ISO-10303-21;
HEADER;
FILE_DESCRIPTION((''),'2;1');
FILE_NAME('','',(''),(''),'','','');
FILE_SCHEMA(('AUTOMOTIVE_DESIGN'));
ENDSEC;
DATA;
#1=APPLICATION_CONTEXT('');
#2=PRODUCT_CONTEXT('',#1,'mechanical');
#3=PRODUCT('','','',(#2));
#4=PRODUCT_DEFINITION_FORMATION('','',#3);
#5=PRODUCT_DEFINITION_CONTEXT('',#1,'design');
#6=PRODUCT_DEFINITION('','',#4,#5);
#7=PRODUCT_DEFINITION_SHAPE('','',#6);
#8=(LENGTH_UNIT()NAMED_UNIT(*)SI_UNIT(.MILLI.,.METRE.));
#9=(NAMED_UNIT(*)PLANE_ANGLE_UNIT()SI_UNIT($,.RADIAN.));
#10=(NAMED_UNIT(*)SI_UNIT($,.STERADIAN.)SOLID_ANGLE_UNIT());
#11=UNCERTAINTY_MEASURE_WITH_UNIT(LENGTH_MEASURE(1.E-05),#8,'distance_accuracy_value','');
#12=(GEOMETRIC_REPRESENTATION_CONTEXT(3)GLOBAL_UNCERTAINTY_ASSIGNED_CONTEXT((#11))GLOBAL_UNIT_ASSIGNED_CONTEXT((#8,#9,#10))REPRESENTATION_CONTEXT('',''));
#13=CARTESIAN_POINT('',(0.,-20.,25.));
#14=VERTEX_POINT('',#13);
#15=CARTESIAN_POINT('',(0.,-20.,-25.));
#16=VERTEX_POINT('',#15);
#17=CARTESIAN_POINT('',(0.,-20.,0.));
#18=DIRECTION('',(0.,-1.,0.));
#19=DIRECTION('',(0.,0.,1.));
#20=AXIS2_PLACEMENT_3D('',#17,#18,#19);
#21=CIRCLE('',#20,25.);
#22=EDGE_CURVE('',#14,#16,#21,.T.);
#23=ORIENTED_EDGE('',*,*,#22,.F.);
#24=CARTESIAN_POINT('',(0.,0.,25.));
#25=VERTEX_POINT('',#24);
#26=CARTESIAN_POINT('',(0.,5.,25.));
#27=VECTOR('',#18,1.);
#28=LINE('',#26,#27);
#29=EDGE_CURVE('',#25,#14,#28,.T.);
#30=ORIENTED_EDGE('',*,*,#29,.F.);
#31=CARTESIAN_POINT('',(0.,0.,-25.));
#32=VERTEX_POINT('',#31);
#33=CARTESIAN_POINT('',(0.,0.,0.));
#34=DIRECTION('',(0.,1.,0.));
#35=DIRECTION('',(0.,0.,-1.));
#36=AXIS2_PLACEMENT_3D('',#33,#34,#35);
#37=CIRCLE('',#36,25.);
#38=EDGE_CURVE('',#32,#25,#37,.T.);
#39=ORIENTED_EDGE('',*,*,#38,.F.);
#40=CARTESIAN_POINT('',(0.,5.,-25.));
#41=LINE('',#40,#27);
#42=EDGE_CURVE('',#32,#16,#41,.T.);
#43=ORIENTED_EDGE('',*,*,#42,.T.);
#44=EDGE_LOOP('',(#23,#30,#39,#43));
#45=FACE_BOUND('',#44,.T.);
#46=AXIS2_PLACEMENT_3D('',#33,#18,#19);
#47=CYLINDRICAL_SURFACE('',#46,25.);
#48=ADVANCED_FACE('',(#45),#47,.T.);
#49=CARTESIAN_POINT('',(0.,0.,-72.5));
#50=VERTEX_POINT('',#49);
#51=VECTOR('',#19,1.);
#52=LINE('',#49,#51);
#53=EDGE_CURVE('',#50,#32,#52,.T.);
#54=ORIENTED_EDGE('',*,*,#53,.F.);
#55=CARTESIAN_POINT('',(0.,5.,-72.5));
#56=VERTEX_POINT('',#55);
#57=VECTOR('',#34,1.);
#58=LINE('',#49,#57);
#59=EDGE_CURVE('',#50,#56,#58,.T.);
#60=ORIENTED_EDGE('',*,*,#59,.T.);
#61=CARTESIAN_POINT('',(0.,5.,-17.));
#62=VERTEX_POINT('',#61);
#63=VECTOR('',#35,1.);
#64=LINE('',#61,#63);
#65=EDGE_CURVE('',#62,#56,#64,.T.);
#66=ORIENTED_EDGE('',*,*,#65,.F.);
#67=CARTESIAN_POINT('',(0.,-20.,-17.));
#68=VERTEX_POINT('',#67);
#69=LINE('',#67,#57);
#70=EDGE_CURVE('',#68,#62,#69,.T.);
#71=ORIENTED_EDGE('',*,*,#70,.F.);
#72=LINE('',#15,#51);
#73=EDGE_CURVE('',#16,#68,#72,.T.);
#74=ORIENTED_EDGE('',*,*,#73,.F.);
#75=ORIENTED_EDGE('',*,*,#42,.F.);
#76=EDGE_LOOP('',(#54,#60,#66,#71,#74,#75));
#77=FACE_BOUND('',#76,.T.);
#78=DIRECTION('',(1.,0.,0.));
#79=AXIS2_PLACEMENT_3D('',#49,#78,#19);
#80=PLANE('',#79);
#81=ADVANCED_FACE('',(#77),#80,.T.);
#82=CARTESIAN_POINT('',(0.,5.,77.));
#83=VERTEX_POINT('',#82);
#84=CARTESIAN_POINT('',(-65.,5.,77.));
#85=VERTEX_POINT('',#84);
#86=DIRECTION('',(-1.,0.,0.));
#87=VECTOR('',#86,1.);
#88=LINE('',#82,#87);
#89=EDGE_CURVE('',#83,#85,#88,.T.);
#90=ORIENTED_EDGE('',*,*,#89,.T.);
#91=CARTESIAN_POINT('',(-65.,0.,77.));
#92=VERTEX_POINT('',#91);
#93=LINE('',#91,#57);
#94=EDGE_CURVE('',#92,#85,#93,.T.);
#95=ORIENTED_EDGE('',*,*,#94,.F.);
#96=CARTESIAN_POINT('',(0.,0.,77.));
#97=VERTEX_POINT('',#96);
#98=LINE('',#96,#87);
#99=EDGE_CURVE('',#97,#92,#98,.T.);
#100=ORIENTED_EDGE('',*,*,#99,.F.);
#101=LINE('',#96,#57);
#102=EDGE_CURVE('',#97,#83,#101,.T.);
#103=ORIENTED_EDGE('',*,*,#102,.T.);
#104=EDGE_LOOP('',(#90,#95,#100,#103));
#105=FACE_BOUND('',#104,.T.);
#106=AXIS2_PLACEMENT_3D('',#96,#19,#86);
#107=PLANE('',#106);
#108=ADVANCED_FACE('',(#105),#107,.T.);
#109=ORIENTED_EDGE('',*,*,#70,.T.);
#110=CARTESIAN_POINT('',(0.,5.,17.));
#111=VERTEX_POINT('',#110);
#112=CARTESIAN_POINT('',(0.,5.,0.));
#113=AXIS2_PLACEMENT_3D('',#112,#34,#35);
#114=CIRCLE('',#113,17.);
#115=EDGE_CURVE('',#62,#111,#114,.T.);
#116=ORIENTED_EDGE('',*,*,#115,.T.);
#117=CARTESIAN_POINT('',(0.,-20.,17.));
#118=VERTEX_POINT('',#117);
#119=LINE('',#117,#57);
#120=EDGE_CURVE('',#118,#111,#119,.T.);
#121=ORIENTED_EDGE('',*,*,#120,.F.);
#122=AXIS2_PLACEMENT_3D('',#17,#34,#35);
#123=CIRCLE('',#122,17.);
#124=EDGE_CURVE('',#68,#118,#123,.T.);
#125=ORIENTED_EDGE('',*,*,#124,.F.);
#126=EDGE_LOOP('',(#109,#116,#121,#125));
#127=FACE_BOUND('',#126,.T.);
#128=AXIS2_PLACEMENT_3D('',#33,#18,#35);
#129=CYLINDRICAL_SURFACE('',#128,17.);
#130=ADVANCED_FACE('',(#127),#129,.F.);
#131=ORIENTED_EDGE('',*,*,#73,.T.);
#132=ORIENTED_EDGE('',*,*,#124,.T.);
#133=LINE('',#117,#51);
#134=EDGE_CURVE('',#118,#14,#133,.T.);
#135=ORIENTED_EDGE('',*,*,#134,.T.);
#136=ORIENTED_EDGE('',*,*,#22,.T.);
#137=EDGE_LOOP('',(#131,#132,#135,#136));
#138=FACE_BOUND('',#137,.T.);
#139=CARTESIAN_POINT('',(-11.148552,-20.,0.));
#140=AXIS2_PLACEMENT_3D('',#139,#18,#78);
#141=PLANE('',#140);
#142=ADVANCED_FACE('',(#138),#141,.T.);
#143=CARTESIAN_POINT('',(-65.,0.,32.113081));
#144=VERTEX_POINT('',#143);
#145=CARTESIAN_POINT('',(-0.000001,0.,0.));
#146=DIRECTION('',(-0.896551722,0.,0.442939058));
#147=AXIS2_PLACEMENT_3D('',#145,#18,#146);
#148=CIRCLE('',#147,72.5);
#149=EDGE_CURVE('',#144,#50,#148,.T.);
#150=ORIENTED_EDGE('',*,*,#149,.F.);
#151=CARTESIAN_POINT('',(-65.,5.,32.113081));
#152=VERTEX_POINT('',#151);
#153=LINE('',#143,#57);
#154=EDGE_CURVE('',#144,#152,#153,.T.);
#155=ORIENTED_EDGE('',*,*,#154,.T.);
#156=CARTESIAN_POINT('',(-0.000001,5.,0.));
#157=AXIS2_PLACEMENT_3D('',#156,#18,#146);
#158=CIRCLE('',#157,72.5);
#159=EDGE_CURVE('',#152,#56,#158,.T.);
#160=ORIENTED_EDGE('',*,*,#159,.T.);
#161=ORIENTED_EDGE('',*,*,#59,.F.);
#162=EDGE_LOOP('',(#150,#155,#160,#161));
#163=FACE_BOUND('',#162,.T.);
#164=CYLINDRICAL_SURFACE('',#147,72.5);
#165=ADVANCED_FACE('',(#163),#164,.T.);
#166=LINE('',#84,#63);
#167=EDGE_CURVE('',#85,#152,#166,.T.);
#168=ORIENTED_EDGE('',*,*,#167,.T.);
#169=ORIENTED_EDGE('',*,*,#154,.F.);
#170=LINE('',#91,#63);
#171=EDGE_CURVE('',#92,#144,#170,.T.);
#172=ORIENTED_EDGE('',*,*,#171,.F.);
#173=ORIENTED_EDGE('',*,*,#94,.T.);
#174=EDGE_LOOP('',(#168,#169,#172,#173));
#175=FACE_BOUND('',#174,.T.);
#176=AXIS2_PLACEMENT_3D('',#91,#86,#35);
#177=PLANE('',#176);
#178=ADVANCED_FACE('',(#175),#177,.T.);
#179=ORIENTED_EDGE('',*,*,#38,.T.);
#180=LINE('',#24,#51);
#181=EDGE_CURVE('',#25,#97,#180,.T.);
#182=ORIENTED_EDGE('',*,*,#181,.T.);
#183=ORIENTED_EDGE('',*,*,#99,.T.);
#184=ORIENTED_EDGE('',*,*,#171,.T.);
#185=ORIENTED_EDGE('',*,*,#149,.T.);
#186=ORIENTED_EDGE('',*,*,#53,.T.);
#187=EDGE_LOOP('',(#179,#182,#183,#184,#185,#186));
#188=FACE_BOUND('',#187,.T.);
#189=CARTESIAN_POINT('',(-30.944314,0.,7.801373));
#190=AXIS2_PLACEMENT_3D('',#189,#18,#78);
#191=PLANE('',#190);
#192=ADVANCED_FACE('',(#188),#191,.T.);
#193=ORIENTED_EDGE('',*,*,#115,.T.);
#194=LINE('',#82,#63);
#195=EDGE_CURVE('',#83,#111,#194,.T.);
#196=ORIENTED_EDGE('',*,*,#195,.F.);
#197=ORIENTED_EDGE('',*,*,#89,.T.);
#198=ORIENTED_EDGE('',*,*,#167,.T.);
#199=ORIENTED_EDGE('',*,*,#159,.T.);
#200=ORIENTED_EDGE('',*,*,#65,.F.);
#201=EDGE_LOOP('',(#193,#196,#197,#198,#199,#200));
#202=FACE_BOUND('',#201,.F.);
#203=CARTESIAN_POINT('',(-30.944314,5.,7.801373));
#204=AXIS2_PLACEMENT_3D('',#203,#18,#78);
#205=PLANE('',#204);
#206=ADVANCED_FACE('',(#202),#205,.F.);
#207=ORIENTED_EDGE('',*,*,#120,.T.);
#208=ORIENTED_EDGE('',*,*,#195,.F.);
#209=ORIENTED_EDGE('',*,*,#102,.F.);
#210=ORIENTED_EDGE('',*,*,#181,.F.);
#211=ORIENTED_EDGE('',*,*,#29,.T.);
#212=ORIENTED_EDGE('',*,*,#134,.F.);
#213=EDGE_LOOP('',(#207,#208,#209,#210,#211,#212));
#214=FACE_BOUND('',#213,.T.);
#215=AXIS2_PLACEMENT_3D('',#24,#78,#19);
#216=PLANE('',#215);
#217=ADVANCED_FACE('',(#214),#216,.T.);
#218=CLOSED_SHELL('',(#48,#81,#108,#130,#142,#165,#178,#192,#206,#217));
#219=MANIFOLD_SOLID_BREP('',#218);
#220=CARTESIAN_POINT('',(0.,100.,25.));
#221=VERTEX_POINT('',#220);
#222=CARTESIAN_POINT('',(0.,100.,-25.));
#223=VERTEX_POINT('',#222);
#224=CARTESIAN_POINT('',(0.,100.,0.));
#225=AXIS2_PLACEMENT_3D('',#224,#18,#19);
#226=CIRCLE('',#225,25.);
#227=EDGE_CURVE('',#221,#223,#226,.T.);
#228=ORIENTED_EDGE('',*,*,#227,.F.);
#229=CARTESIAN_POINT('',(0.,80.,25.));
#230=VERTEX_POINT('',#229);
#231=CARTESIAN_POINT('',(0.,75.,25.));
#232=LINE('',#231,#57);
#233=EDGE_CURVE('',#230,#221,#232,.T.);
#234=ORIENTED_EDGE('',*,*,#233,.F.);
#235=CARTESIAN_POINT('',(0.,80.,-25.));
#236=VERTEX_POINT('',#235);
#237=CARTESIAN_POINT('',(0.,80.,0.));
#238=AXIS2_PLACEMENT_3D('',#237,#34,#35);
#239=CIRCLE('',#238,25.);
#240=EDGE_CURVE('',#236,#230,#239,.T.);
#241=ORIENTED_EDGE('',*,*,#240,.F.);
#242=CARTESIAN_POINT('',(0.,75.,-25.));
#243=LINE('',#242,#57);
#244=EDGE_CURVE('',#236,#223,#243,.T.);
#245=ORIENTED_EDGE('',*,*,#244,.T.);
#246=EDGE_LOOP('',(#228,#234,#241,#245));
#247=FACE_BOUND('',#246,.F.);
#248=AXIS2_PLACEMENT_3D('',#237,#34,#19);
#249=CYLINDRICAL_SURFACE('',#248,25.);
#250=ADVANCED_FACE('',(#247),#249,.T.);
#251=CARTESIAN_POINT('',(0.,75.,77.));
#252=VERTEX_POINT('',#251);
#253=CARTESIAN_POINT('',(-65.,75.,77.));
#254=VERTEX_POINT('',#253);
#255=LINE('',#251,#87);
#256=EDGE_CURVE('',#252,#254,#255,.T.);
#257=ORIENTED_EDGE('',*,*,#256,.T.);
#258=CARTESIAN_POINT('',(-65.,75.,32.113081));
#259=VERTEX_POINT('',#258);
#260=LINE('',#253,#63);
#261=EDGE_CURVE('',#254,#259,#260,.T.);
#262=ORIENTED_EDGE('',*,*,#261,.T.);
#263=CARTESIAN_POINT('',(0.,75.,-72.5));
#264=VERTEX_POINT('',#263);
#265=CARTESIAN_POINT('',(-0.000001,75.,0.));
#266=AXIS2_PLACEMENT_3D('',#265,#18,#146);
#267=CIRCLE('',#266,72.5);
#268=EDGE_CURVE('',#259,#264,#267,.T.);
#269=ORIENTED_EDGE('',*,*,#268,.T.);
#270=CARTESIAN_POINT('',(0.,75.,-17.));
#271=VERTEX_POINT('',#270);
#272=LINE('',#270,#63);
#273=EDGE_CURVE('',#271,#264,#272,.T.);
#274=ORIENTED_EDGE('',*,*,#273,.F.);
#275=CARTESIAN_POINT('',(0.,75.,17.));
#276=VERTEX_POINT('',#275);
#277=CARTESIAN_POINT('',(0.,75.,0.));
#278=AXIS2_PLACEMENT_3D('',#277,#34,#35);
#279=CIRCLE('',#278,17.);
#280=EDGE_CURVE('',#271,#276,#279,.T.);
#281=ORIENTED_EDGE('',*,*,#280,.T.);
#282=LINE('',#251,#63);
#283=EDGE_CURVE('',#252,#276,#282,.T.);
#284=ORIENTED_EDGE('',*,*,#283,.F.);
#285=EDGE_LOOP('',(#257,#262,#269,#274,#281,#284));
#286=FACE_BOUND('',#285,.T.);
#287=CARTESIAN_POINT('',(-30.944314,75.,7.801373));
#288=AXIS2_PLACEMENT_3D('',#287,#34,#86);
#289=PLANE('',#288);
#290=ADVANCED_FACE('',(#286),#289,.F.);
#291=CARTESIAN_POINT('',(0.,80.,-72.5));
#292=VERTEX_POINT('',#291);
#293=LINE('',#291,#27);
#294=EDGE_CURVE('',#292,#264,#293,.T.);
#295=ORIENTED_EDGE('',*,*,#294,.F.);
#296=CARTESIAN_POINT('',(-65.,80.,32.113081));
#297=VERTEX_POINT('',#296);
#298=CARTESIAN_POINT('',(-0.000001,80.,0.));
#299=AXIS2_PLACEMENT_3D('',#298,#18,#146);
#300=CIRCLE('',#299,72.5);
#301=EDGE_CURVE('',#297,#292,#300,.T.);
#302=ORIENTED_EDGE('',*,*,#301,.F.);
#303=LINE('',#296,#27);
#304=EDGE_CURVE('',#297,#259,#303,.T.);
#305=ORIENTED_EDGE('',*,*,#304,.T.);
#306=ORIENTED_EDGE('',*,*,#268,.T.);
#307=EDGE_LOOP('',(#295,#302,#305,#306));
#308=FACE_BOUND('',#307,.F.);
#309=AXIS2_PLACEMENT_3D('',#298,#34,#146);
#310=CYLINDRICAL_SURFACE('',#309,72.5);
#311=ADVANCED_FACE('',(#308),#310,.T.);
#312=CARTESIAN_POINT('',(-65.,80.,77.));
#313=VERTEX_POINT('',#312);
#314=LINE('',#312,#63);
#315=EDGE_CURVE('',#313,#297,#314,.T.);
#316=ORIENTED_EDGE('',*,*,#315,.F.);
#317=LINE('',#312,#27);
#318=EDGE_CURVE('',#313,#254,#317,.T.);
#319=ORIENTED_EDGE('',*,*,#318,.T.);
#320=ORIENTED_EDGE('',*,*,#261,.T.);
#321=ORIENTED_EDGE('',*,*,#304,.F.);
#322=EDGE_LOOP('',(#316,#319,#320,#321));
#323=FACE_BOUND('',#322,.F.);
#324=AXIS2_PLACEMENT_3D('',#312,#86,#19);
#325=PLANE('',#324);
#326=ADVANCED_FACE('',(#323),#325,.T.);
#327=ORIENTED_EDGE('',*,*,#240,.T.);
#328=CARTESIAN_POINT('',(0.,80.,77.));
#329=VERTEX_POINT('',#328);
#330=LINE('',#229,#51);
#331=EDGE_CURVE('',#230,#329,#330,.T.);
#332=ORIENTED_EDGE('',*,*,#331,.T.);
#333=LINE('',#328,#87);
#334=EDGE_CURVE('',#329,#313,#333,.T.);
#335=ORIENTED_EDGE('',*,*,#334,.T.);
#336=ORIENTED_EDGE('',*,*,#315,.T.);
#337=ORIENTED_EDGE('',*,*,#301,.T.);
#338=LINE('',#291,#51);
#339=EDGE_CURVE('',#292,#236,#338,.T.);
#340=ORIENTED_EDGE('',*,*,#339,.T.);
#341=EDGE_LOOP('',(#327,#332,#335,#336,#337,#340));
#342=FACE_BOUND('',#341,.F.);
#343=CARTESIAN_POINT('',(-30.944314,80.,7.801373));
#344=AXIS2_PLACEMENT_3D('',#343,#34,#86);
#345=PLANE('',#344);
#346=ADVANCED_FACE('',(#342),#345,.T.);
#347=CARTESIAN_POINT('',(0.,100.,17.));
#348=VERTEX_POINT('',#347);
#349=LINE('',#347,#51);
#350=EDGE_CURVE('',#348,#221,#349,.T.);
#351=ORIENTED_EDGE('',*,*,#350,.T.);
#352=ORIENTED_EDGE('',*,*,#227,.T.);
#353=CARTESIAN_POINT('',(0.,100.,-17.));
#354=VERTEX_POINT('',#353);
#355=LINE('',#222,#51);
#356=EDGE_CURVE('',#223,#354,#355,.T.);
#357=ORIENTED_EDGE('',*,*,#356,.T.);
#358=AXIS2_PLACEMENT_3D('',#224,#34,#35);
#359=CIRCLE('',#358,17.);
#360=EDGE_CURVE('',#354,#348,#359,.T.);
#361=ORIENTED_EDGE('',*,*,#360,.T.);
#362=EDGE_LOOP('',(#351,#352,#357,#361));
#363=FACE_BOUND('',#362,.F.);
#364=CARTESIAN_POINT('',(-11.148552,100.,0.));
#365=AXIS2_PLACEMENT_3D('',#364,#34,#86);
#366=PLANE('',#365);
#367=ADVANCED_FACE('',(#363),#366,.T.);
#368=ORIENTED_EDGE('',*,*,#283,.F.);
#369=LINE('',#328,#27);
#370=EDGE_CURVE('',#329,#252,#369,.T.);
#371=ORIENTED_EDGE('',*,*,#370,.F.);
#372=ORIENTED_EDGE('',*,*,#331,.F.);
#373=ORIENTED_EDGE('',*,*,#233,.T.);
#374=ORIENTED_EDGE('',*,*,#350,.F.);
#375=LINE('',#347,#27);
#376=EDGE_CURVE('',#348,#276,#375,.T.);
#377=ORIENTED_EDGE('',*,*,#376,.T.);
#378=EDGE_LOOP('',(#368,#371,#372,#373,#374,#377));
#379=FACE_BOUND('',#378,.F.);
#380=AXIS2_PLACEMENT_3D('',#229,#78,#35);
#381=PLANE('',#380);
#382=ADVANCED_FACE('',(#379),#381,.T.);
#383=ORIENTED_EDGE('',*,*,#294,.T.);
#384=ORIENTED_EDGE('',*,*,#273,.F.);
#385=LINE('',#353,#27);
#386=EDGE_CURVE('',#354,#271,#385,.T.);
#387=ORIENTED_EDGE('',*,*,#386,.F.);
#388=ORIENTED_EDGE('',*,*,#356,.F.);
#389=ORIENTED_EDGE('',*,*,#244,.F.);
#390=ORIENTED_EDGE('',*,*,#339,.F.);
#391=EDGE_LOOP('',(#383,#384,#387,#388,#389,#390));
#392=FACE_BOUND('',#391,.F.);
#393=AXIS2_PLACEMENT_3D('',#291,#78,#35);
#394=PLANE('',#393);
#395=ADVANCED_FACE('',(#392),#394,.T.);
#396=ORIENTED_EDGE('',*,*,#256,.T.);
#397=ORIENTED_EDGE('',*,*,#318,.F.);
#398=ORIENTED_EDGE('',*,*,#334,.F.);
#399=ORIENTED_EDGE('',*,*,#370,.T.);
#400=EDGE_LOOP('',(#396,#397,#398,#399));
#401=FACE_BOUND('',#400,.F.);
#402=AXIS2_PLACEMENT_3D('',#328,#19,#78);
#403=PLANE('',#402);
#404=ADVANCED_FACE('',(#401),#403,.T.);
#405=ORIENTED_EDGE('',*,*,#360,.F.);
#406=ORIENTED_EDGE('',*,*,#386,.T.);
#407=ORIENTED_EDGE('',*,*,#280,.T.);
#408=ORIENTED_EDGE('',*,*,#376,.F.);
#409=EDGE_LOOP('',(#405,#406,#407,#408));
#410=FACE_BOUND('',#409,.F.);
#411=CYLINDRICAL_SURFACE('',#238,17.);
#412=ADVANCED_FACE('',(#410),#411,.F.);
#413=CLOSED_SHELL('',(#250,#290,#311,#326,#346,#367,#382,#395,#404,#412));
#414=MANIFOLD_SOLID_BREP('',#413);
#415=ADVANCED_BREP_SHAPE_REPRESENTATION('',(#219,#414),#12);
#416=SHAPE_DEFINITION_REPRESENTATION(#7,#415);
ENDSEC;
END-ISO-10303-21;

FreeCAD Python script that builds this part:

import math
import FreeCAD as App
import Part
import Sketcher
from FreeCAD import Vector
Q = App.Units.Quantity

doc = App.newDocument("Part")
body = doc.addObject("PartDesign::Body", "Body")

sketch1 = doc.addObject("Sketcher::SketchObject", "Sketch")
body.addObject(sketch1)
sketch1.AttachmentSupport = (doc.XZ_Plane, [""])
sketch1.MapMode = "FlatFace"
sketch1.addGeometry([
    Part.LineSegment(Vector(0, 17, 0), Vector(0, 25, 0)),
    Part.ArcOfCircle(Part.Circle(Vector(0, 0, 0), Vector(0, 0, 1), 25), math.radians(90), math.radians(270)),
    Part.LineSegment(Vector(0, -25, 0), Vector(0, -17, 0)),
    Part.ArcOfCircle(Part.Circle(Vector(0, 0, 0), Vector(0, 0, 1), 17), math.radians(90), math.radians(270)),
], False)
sketch1.addConstraint([
    Sketcher.Constraint("Coincident", 0, 2, 1, 1),
    Sketcher.Constraint("Coincident", 1, 2, 2, 1),
    Sketcher.Constraint("Coincident", 2, 2, 3, 2),
    Sketcher.Constraint("Coincident", 3, 1, 0, 1),
    Sketcher.Constraint("Vertical", 0),
    Sketcher.Constraint("Vertical", 2),
    Sketcher.Constraint("Coincident", 1, 3, -1, 1),
    Sketcher.Constraint("Coincident", 3, 3, -1, 1),
    Sketcher.Constraint("PointOnObject", 0, 2, -2),
    Sketcher.Constraint("PointOnObject", 1, 2, -2),
    Sketcher.Constraint("Radius", 1, Q("25 mm")),
    Sketcher.Constraint("Radius", 3, Q("17 mm")),
])
pad1 = doc.addObject("PartDesign::Pad", "Pad")
body.addObject(pad1)
pad1.Profile = sketch1
pad1.Type = "TwoLengths"
pad1.Length = 20
pad1.Length2 = 5

sketch2 = doc.addObject("Sketcher::SketchObject", "Sketch001")
body.addObject(sketch2)
sketch2.AttachmentSupport = (doc.XZ_Plane, [""])
sketch2.MapMode = "FlatFace"
sketch2.addGeometry([
    Part.LineSegment(Vector(-65, 77, 0), Vector(-65, 32, 0)),
    Part.ArcOfCircle(Part.Circle(Vector(0, 0, 0), Vector(0, 0, 1), 72), math.radians(154), math.radians(270)),
    Part.LineSegment(Vector(0, -72, 0), Vector(0, -25, 0)),
    Part.ArcOfCircle(Part.Circle(Vector(0, 0, 0), Vector(0, 0, 1), 25), math.radians(90), math.radians(270)),
    Part.LineSegment(Vector(0, 25, 0), Vector(0, 77, 0)),
    Part.LineSegment(Vector(0, 77, 0), Vector(-65, 77, 0)),
], False)
sketch2.addConstraint([
    Sketcher.Constraint("Coincident", 0, 2, 1, 1),
    Sketcher.Constraint("Coincident", 1, 2, 2, 1),
    Sketcher.Constraint("Coincident", 2, 2, 3, 2),
    Sketcher.Constraint("Coincident", 3, 1, 4, 1),
    Sketcher.Constraint("Coincident", 4, 2, 5, 1),
    Sketcher.Constraint("Coincident", 5, 2, 0, 1),
    Sketcher.Constraint("Vertical", 0),
    Sketcher.Constraint("Vertical", 2),
    Sketcher.Constraint("Vertical", 4),
    Sketcher.Constraint("Horizontal", 5),
    Sketcher.Constraint("Coincident", 1, 3, -1, 1),
    Sketcher.Constraint("Coincident", 3, 3, -1, 1),
    Sketcher.Constraint("PointOnObject", 1, 2, -2),
    Sketcher.Constraint("PointOnObject", 3, 1, -2),
    Sketcher.Constraint("Radius", 3, Q("25 mm")),
    Sketcher.Constraint("Radius", 1, Q("72.5 mm")),
    Sketcher.Constraint("DistanceX", 5, 2, 5, 1, Q("65 mm")),
    Sketcher.Constraint("DistanceY", 4, 1, 4, 2, Q("52 mm")),
])
pad2 = doc.addObject("PartDesign::Pad", "Pad001")
body.addObject(pad2)
pad2.Profile = sketch2
pad2.Length = 5
pad2.Reversed = True
body2 = doc.addObject("PartDesign::Body", "Body001")
doc.recompute()

mirroring = doc.addObject("Part::Mirroring", "Mirroring")
mirroring.Source = body
mirroring.Base = Vector(0, 40, 0)
mirroring.Normal = Vector(0, -1, 0)
body2.BaseFeature = mirroring
doc.recompute()
mirroring.Visibility = False

doc.recompute()
